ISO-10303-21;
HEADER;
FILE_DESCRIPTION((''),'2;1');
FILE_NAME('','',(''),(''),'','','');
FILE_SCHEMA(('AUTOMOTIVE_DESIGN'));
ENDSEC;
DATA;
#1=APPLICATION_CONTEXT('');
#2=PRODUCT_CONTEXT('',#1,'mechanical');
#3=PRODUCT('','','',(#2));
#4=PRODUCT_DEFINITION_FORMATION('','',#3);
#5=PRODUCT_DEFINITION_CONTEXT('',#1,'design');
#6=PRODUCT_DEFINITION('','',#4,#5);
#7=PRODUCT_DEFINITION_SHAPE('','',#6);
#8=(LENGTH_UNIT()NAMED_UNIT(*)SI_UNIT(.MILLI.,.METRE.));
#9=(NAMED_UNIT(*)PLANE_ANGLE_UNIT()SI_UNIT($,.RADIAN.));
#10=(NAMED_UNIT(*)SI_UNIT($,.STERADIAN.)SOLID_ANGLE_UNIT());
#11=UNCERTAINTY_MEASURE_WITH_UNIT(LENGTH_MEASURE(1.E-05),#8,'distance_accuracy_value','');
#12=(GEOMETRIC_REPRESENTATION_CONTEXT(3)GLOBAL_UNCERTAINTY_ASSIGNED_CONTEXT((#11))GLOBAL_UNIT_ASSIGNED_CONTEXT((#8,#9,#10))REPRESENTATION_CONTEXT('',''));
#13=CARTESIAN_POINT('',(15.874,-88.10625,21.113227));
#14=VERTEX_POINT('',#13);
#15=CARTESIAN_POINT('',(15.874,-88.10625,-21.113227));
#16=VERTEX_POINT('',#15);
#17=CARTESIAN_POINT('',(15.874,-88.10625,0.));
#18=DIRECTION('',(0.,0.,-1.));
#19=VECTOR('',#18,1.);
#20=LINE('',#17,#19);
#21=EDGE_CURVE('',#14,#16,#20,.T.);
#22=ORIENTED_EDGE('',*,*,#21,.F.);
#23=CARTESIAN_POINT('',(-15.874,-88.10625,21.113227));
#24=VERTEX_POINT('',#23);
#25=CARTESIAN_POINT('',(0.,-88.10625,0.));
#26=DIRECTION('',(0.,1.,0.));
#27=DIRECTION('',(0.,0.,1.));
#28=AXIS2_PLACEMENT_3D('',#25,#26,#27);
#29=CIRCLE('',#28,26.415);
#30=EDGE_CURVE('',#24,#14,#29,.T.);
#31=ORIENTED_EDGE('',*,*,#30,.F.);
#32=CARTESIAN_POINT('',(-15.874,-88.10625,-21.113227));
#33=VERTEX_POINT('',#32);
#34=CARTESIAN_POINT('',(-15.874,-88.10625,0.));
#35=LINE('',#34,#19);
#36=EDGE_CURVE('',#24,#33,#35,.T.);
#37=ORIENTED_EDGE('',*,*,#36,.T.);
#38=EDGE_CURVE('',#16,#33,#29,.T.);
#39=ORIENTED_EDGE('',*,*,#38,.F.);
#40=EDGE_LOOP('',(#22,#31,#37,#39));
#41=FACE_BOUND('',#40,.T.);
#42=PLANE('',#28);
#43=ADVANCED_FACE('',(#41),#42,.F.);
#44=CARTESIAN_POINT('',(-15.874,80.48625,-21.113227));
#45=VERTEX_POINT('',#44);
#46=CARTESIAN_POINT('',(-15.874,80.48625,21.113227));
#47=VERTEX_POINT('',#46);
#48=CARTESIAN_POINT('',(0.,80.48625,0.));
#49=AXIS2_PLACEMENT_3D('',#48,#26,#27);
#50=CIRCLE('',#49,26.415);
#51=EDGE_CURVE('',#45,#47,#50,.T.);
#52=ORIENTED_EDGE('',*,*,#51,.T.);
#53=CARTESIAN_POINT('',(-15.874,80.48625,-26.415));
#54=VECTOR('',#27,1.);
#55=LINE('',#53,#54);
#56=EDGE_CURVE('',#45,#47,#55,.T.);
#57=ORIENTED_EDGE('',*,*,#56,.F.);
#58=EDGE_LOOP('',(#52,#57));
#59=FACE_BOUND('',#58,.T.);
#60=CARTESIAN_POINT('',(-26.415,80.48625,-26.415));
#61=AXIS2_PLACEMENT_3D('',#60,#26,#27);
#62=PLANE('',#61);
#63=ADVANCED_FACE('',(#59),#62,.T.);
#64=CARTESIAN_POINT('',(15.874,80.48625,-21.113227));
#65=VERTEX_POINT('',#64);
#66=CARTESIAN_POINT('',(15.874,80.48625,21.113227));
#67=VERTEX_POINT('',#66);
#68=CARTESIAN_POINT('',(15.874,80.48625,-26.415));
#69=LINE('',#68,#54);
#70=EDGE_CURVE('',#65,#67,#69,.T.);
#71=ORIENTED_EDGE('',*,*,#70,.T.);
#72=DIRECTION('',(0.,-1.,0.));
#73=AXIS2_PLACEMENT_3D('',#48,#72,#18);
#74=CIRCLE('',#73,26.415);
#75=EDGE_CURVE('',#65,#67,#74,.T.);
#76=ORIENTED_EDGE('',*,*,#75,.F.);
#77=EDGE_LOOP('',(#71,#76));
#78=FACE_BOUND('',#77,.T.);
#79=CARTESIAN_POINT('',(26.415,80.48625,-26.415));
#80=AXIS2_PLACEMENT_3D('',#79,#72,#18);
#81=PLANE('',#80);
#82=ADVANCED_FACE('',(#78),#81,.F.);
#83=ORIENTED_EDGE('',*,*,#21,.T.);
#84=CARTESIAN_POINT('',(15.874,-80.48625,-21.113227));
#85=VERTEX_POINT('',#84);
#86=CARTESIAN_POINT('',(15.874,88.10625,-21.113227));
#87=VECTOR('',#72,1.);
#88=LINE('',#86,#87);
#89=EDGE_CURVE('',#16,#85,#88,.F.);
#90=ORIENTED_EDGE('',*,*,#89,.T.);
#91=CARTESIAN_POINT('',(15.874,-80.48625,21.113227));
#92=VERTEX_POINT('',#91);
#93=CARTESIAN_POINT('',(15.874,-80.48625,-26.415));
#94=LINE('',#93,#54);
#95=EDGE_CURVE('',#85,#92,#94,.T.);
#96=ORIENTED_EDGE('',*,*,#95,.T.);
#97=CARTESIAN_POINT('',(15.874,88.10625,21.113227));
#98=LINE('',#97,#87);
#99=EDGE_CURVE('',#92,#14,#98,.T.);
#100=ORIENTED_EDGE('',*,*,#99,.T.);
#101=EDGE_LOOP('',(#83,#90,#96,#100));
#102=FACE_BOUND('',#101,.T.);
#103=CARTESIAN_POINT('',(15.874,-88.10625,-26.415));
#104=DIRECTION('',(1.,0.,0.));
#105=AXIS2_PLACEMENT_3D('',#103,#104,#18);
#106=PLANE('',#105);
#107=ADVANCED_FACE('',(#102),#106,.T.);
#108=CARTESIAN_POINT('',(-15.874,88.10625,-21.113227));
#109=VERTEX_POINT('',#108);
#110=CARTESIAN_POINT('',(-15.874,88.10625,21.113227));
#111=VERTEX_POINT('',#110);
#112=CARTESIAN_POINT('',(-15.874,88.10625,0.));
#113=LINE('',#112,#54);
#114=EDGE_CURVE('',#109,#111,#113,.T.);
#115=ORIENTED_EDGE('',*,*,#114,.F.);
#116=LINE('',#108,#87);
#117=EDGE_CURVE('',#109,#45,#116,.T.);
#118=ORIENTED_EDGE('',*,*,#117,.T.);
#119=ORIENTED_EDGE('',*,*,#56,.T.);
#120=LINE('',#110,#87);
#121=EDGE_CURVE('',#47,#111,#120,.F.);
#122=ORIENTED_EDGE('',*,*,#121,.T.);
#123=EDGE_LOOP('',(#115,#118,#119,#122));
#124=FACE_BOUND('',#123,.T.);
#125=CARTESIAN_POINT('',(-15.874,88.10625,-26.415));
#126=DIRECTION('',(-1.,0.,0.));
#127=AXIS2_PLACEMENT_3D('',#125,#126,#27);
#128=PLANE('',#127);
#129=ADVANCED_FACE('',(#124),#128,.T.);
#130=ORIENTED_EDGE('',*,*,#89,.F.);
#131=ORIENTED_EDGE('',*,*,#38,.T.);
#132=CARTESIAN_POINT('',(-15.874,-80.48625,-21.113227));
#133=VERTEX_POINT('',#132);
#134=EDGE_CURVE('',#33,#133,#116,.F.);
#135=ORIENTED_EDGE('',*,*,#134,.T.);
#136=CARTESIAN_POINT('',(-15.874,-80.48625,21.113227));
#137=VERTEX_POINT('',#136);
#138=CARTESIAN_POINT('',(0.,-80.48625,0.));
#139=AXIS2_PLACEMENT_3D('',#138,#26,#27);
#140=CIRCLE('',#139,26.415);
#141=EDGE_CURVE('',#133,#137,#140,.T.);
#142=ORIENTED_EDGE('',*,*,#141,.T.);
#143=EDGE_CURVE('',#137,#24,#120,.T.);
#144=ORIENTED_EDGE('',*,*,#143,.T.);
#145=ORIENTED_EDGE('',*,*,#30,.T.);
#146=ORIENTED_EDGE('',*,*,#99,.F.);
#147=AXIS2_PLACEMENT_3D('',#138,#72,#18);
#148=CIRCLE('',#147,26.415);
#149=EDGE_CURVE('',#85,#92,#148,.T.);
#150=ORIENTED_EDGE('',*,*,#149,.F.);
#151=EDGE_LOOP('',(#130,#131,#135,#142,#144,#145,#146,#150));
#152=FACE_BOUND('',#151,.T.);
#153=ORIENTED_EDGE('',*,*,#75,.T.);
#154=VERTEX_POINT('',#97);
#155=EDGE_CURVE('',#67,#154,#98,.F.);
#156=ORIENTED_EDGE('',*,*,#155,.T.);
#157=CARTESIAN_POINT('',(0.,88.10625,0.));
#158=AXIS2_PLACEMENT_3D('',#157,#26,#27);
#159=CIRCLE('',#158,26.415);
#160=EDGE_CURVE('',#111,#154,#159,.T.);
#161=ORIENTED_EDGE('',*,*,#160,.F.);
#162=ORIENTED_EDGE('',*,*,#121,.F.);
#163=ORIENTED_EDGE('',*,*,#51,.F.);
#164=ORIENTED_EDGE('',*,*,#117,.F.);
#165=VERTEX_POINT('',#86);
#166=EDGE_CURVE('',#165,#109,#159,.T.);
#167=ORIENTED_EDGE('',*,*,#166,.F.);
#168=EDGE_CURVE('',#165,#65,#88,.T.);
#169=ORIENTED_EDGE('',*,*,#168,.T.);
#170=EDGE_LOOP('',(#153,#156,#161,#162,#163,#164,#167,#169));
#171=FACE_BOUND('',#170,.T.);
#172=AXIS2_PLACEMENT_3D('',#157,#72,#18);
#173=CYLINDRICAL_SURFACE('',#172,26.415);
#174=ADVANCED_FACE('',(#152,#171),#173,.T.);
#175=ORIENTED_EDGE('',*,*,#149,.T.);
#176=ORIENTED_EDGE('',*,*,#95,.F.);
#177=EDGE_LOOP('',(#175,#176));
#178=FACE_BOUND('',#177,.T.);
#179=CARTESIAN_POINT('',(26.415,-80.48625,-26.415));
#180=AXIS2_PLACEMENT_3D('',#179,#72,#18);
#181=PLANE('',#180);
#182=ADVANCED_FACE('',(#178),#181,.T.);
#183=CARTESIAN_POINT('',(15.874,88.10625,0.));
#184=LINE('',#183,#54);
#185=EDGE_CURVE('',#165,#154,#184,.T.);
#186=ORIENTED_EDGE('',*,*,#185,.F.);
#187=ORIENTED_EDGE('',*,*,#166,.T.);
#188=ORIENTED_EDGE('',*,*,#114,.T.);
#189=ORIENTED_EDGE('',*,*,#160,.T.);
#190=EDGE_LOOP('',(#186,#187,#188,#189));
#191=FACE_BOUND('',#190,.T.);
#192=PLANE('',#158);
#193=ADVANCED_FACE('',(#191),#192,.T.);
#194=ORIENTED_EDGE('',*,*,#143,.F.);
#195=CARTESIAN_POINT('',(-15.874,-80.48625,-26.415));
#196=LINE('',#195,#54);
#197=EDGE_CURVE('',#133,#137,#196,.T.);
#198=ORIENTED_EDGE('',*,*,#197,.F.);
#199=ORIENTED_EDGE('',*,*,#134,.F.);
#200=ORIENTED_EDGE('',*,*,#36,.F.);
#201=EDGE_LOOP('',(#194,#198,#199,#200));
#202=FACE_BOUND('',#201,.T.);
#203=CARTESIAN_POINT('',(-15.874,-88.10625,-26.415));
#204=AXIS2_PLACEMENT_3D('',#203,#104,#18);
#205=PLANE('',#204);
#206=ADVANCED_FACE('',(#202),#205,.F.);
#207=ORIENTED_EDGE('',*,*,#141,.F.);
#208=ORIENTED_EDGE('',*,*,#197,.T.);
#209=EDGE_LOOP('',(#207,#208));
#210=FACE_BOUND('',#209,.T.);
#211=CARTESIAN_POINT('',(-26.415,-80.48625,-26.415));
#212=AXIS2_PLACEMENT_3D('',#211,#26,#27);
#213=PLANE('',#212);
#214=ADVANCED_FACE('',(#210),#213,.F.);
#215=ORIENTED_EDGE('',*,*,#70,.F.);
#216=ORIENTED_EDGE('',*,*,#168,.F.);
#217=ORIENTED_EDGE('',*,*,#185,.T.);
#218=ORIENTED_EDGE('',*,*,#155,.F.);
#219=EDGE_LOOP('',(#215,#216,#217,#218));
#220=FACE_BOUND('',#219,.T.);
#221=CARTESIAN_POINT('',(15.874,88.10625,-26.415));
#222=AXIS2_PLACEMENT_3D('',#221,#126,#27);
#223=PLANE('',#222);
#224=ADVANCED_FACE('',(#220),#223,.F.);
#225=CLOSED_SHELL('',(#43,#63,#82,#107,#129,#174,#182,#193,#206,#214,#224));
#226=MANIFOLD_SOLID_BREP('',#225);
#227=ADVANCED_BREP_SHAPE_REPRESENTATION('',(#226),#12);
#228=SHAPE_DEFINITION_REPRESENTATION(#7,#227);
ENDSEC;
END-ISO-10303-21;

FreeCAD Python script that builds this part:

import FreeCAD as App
import Part
import Sketcher
Q = App.Units.Quantity

doc = App.newDocument("Part")
body = doc.addObject("PartDesign::Body", "Body")

sketch1 = doc.addObject("Sketcher::SketchObject", "Sketch")
body.addObject(sketch1)
sketch1.AttachmentSupport = (doc.XZ_Plane, [""])
sketch1.MapMode = "FlatFace"
sketch1.addGeometry(Part.Circle(App.Vector(0, 0, 0), App.Vector(0, 0, 1), 26), False)
sketch1.addConstraint(Sketcher.Constraint("Coincident", 0, 3, -1, 1))
sketch1.addConstraint(Sketcher.Constraint("Diameter", 0, Q("52.83 mm")))
pad1 = doc.addObject("PartDesign::Pad", "Pad")
body.addObject(pad1)
pad1.Profile = sketch1
pad1.Length = Q("6.9375 in")
pad1.Midplane = True

sketch2 = doc.addObject("Sketcher::SketchObject", "Sketch001")
body.addObject(sketch2)
sketch2.AttachmentSupport = (doc.XY_Plane, [""])
sketch2.MapMode = "FlatFace"
sketch2.addGeometry(Part.LineSegment(App.Vector(16, 88, 0), App.Vector(16, 80, 0)), False)
sketch2.addGeometry(Part.LineSegment(App.Vector(16, 80, 0), App.Vector(26, 80, 0)), False)
sketch2.addGeometry(Part.LineSegment(App.Vector(26, 80, 0), App.Vector(26, 88, 0)), False)
sketch2.addGeometry(Part.LineSegment(App.Vector(26, 88, 0), App.Vector(16, 88, 0)), False)
sketch2.addConstraint(Sketcher.Constraint("Coincident", 0, 2, 1, 1))
sketch2.addConstraint(Sketcher.Constraint("Coincident", 1, 2, 2, 1))
sketch2.addConstraint(Sketcher.Constraint("Coincident", 2, 2, 3, 1))
sketch2.addConstraint(Sketcher.Constraint("Coincident", 3, 2, 0, 1))
sketch2.addConstraint(Sketcher.Constraint("Vertical", 0))
sketch2.addConstraint(Sketcher.Constraint("Horizontal", 1))
sketch2.addConstraint(Sketcher.Constraint("Vertical", 2))
sketch2.addConstraint(Sketcher.Constraint("Horizontal", 3))
sketch2.addConstraint(Sketcher.Constraint("DistanceY", 0, 2, 0, 1, Q("0.3 in")))
sketch2.addConstraint(Sketcher.Constraint("DistanceX", 1, 1, 1, 2, Q("0.415 in")))
sketch2.addConstraint(Sketcher.Constraint("DistanceY", -1, 1, 2, 2, Q("3.46875 in")))
sketch2.addConstraint(Sketcher.Constraint("DistanceX", -1, 1, 0, 2, Q("15.874 mm")))
pocket1 = doc.addObject("PartDesign::Pocket", "Pocket")
body.addObject(pocket1)
pocket1.Profile = sketch2
pocket1.Length = 54.83
pocket1.Midplane = True
doc.recompute()

mirrored = doc.addObject("PartDesign::Mirrored", "Mirrored")
body.addObject(mirrored)
mirrored.Originals = [pocket1]
mirrored.MirrorPlane = (doc.YZ_Plane, [""])
body.Tip = mirrored
doc.recompute()

mirrored2 = doc.addObject("PartDesign::Mirrored", "Mirrored001")
body.addObject(mirrored2)
mirrored2.Originals = [pocket1]
mirrored2.MirrorPlane = (doc.XZ_Plane, [""])
body.Tip = mirrored2

sketch3 = doc.addObject("Sketcher::SketchObject", "Sketch002")
body.addObject(sketch3)
sketch3.AttachmentSupport = (doc.XY_Plane, [""])
sketch3.MapMode = "FlatFace"
sketch3.addGeometry(Part.LineSegment(App.Vector(-16, -88, 0), App.Vector(-16, -80, 0)), False)
sketch3.addGeometry(Part.LineSegment(App.Vector(-16, -80, 0), App.Vector(-26, -80, 0)), False)
sketch3.addGeometry(Part.LineSegment(App.Vector(-26, -80, 0), App.Vector(-26, -88, 0)), False)
sketch3.addGeometry(Part.LineSegment(App.Vector(-26, -88, 0), App.Vector(-16, -88, 0)), False)
sketch3.addConstraint(Sketcher.Constraint("Coincident", 0, 2, 1, 1))
sketch3.addConstraint(Sketcher.Constraint("Coincident", 1, 2, 2, 1))
sketch3.addConstraint(Sketcher.Constraint("Coincident", 2, 2, 3, 1))
sketch3.addConstraint(Sketcher.Constraint("Coincident", 3, 2, 0, 1))
sketch3.addConstraint(Sketcher.Constraint("Vertical", 0))
sketch3.addConstraint(Sketcher.Constraint("Horizontal", 1))
sketch3.addConstraint(Sketcher.Constraint("Vertical", 2))
sketch3.addConstraint(Sketcher.Constraint("Horizontal", 3))
sketch3.addConstraint(Sketcher.Constraint("DistanceY", 0, 1, 0, 2, Q("0.3 in")))
sketch3.addConstraint(Sketcher.Constraint("DistanceX", 1, 2, 1, 1, Q("0.415 in")))
sketch3.addConstraint(Sketcher.Constraint("DistanceY", 2, 2, -1, 1, Q("3.46875 in")))
sketch3.addConstraint(Sketcher.Constraint("DistanceX", 0, 2, -1, 1, Q("15.874 mm")))
pocket2 = doc.addObject("PartDesign::Pocket", "Pocket001")
body.addObject(pocket2)
pocket2.Profile = sketch3
pocket2.Length = 54.83
pocket2.Midplane = True

doc.recompute()
